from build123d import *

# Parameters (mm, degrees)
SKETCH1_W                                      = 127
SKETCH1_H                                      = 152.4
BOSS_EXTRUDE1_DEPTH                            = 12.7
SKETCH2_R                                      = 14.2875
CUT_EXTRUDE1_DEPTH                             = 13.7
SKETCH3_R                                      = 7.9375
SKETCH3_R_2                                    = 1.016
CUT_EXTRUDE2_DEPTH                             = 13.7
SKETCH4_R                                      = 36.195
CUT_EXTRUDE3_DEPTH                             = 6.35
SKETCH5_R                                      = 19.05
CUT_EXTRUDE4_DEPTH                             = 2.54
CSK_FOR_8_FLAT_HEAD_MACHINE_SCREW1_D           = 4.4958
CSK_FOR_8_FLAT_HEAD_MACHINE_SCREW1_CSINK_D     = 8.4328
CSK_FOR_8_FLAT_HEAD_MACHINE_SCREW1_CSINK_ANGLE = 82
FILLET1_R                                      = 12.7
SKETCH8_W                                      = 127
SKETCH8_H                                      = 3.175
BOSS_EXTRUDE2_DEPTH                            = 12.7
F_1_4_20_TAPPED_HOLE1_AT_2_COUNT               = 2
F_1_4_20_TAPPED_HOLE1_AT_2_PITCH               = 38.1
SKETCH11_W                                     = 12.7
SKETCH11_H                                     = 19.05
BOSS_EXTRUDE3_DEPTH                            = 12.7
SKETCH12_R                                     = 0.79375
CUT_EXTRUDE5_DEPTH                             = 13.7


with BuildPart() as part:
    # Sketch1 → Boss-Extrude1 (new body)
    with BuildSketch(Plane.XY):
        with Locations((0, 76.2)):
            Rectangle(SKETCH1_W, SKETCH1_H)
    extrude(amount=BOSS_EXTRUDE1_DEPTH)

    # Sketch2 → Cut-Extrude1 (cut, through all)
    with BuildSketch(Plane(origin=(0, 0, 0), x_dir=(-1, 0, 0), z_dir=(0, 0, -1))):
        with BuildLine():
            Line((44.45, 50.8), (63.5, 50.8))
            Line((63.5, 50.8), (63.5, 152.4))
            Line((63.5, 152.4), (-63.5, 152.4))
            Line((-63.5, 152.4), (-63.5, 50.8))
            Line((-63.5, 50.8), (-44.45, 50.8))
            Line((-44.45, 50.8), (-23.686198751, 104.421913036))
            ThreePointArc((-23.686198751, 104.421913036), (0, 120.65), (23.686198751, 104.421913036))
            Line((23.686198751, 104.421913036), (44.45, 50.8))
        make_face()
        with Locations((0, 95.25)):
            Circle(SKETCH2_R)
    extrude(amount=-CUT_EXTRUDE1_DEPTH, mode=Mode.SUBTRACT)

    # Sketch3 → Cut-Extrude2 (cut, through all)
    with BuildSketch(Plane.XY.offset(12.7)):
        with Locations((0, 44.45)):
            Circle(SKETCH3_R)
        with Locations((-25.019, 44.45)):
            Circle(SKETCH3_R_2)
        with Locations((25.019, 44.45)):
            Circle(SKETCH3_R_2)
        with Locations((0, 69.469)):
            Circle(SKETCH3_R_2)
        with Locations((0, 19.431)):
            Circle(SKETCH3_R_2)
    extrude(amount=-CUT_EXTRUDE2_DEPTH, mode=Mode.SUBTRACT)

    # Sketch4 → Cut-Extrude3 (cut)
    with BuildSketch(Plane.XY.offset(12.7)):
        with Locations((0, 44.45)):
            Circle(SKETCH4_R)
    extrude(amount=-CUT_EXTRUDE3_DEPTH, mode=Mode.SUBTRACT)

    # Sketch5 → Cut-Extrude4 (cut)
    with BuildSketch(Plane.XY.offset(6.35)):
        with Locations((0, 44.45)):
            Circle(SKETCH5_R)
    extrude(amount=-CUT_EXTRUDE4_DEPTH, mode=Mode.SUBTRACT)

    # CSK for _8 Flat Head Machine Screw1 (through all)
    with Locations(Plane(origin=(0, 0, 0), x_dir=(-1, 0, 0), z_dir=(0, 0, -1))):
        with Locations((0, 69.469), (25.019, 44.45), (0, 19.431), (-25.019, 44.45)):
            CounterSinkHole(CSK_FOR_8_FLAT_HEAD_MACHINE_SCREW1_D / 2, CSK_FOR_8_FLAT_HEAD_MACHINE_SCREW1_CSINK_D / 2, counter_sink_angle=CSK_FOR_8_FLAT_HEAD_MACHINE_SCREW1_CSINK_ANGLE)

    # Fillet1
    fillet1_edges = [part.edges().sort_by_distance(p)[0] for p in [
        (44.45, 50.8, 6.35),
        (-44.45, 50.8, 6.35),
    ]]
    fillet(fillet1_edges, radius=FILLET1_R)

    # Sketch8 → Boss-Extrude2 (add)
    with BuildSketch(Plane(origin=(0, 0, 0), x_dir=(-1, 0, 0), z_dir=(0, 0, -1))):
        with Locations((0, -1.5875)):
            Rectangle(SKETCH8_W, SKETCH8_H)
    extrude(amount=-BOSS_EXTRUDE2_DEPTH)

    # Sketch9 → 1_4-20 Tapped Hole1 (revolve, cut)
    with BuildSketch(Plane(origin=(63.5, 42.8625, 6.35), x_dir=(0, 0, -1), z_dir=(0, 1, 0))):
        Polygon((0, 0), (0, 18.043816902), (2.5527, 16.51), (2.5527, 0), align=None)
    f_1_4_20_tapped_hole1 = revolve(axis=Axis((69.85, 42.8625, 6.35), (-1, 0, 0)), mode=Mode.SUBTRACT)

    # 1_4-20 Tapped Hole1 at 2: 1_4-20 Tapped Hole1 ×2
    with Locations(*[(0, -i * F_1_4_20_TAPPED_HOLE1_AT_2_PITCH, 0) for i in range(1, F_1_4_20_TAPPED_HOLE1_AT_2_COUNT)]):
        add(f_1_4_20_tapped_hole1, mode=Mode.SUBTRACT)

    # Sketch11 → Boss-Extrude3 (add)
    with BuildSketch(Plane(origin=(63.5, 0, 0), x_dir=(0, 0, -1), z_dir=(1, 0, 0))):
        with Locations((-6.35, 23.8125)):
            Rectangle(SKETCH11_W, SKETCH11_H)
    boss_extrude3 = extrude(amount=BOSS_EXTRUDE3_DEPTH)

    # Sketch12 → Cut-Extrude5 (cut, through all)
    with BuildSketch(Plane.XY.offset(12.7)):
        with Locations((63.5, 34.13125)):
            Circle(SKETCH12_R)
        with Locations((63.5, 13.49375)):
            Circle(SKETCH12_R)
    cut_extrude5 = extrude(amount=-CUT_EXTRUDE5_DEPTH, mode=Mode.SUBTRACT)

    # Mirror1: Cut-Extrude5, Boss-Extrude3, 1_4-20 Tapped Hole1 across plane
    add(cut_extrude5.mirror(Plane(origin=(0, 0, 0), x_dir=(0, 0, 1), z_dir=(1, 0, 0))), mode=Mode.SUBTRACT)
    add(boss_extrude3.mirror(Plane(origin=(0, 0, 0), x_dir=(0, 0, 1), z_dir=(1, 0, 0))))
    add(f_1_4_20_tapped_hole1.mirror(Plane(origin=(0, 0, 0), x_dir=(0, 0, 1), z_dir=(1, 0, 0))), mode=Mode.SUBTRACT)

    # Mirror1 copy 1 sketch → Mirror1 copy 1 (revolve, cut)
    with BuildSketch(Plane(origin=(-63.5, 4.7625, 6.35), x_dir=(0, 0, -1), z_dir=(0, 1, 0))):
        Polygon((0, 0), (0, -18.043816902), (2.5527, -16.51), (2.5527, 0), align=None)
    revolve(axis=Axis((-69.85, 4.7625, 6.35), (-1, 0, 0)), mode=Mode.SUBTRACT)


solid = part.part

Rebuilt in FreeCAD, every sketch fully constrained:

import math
import FreeCAD as App
import Part
import Sketcher
Q = App.Units.Quantity


def edges_at(feature, points):
    """Names of the edges that pass closest to the given points."""
    edges = feature.Shape.Edges
    near = lambda p: min(range(len(edges)), key=lambda i: edges[i].distToShape(Part.Vertex(*p))[0])
    return sorted({f"Edge{near(p) + 1}" for p in points})

doc = App.newDocument("Part")
body = doc.addObject("PartDesign::Body", "Body")

# Sketch on XY plane
sketch1 = body.newObject("Sketcher::SketchObject", "Sketch")
sketch1.AttachmentSupport = (doc.getObject("XY_Plane"), [""])
sketch1.MapMode = "FlatFace"
sketch1.addGeometry([
    Part.LineSegment(App.Vector(-64, 152, 0), App.Vector(-64, 0, 0)),
    Part.LineSegment(App.Vector(-64, 0, 0), App.Vector(64, 0, 0)),
    Part.LineSegment(App.Vector(64, 0, 0), App.Vector(64, 152, 0)),
    Part.LineSegment(App.Vector(64, 152, 0), App.Vector(-64, 152, 0)),
], False)
sketch1.addConstraint([
    Sketcher.Constraint("Coincident", 0, 2, 1, 1),
    Sketcher.Constraint("Coincident", 1, 2, 2, 1),
    Sketcher.Constraint("Coincident", 2, 2, 3, 1),
    Sketcher.Constraint("Coincident", 3, 2, 0, 1),
    Sketcher.Constraint("Vertical", 0),
    Sketcher.Constraint("Horizontal", 1),
    Sketcher.Constraint("Vertical", 2),
    Sketcher.Constraint("Horizontal", 3),
    Sketcher.Constraint("Symmetric", 0, 2, 1, 2, -1, 1),
    Sketcher.Constraint("DistanceX", 1, 1, 1, 2, Q("5 in")),
    Sketcher.Constraint("DistanceY", 0, 2, 0, 1, Q("6 in")),
])
pad1 = body.newObject("PartDesign::Pad", "Pad")
pad1.Profile = sketch1
pad1.Length = Q("0.5 in")

# Sketch on XY plane
sketch2 = body.newObject("Sketcher::SketchObject", "Sketch001")
sketch2.AttachmentSupport = (doc.getObject("XY_Plane"), [""])
sketch2.MapMode = "FlatFace"
sketch2.addGeometry([
    Part.LineSegment(App.Vector(-44, 51, 0), App.Vector(-64, 51, 0)),  # 0
    Part.LineSegment(App.Vector(-64, 51, 0), App.Vector(-64, 152, 0)),  # 1
    Part.LineSegment(App.Vector(-64, 152, 0), App.Vector(64, 152, 0)),  # 2
    Part.LineSegment(App.Vector(64, 152, 0), App.Vector(64, 51, 0)),  # 3
    Part.LineSegment(App.Vector(64, 51, 0), App.Vector(44, 51, 0)),  # 4
    Part.LineSegment(App.Vector(44, 51, 0), App.Vector(24, 104, 0)),  # 5
    Part.ArcOfCircle(Part.Circle(App.Vector(0, 95, 0), App.Vector(0, 0, 1), 25), math.radians(21), math.radians(159)),  # 6
    Part.LineSegment(App.Vector(-24, 104, 0), App.Vector(-44, 51, 0)),  # 7
    Part.Circle(App.Vector(0, 95, 0), App.Vector(0, 0, 1), 14),  # 8
], False)
sketch2.addConstraint([
    Sketcher.Constraint("Coincident", 0, 2, 1, 1),
    Sketcher.Constraint("Coincident", 1, 2, 2, 1),
    Sketcher.Constraint("Coincident", 2, 2, 3, 1),
    Sketcher.Constraint("Coincident", 3, 2, 4, 1),
    Sketcher.Constraint("Coincident", 4, 2, 5, 1),
    Sketcher.Constraint("Tangent", 5, 2, 6, 1),
    Sketcher.Constraint("Tangent", 6, 2, 7, 1),
    Sketcher.Constraint("Coincident", 7, 2, 0, 1),
    Sketcher.Constraint("Horizontal", 0),
    Sketcher.Constraint("Vertical", 1),
    Sketcher.Constraint("Horizontal", 2),
    Sketcher.Constraint("Vertical", 3),
    Sketcher.Constraint("Horizontal", 4),
    Sketcher.Constraint("Coincident", 8, 3, 6, 3),
    Sketcher.Constraint("Symmetric", 0, 2, 3, 2, -2),
    Sketcher.Constraint("Symmetric", 5, 2, 6, 2, -2),
    Sketcher.Constraint("Radius", 6, Q("1 in")),
    Sketcher.Constraint("DistanceX", 2, 1, 2, 2, Q("5 in")),
    Sketcher.Constraint("DistanceY", 1, 1, 1, 2, Q("4 in")),
    Sketcher.Constraint("Diameter", 8, Q("1.125 in")),
    Sketcher.Constraint("DistanceY", -1, 1, 0, 2, Q("2 in")),
    Sketcher.Constraint("DistanceX", 0, 2, 0, 1, Q("0.75 in")),
    Sketcher.Constraint("DistanceY", -1, 1, 6, 3, Q("3.75 in")),
])
pocket1 = body.newObject("PartDesign::Pocket", "Pocket")
pocket1.Profile = sketch2
pocket1.Type = "ThroughAll"
pocket1.Reversed = True

# Sketch on XY plane
sketch3 = body.newObject("Sketcher::SketchObject", "Sketch002")
sketch3.AttachmentSupport = (doc.getObject("XY_Plane"), [""])
sketch3.MapMode = "FlatFace"
sketch3.AttachmentOffset = App.Placement(App.Vector(0, 0, 0.5 * 25.4), App.Rotation())
sketch3.addGeometry([
    Part.Circle(App.Vector(0, 44.5, 0), App.Vector(0, 0, 1), 7.9),  # 0
    Part.Circle(App.Vector(-25, 44.5, 0), App.Vector(0, 0, 1), 1),  # 1
    Part.Circle(App.Vector(25, 44.5, 0), App.Vector(0, 0, 1), 1),  # 2
    Part.Circle(App.Vector(0, 69.5, 0), App.Vector(0, 0, 1), 1),  # 3
    Part.Circle(App.Vector(0, 19.4, 0), App.Vector(0, 0, 1), 1),  # 4
], False)
sketch3.addConstraint([
    Sketcher.Constraint("Equal", 1, 2),
    Sketcher.Constraint("Equal", 2, 3),
    Sketcher.Constraint("Equal", 3, 4),
    Sketcher.Constraint("Symmetric", 1, 3, 2, 3, -2),
    Sketcher.Constraint("PointOnObject", 0, 3, -2),
    Sketcher.Constraint("PointOnObject", 3, 3, -2),
    Sketcher.Constraint("PointOnObject", 4, 3, -2),
    Sketcher.Constraint("Horizontal", 0, 3, 1, 3),
    Sketcher.Constraint("Diameter", 1, Q("0.08 in")),
    Sketcher.Constraint("Diameter", 0, Q("0.625 in")),
    Sketcher.Constraint("DistanceY", -1, 1, 0, 3, Q("1.75 in")),
    Sketcher.Constraint("DistanceX", 1, 3, 2, 3, Q("1.97 in")),
    Sketcher.Constraint("DistanceY", 4, 3, 3, 3, Q("1.97 in")),
    Sketcher.Constraint("DistanceY", -1, 1, 3, 3, Q("2.735 in")),
])
pocket2 = body.newObject("PartDesign::Pocket", "Pocket001")
pocket2.Profile = sketch3
pocket2.Type = "ThroughAll"

# Sketch on XY plane
sketch4 = body.newObject("Sketcher::SketchObject", "Sketch003")
sketch4.AttachmentSupport = (doc.getObject("XY_Plane"), [""])
sketch4.MapMode = "FlatFace"
sketch4.AttachmentOffset = App.Placement(App.Vector(0, 0, 0.5 * 25.4), App.Rotation())
sketch4.addGeometry(Part.Circle(App.Vector(0, 44, 0), App.Vector(0, 0, 1), 36), False)
sketch4.addConstraint([
    Sketcher.Constraint("PointOnObject", 0, 3, -2),
    Sketcher.Constraint("Diameter", 0, Q("2.85 in")),
    Sketcher.Constraint("DistanceY", -1, 1, 0, 3, Q("1.75 in")),
])
pocket3 = body.newObject("PartDesign::Pocket", "Pocket002")
pocket3.Profile = sketch4
pocket3.Length = Q("0.25 in")

# Sketch on XY plane
sketch5 = body.newObject("Sketcher::SketchObject", "Sketch004")
sketch5.AttachmentSupport = (doc.getObject("XY_Plane"), [""])
sketch5.MapMode = "FlatFace"
sketch5.AttachmentOffset = App.Placement(App.Vector(0, 0, 0.25 * 25.4), App.Rotation())
sketch5.addGeometry(Part.Circle(App.Vector(0, 44, 0), App.Vector(0, 0, 1), 19), False)
sketch5.addConstraint([
    Sketcher.Constraint("PointOnObject", 0, 3, -2),
    Sketcher.Constraint("Diameter", 0, Q("1.5 in")),
    Sketcher.Constraint("DistanceY", -1, 1, 0, 3, Q("1.75 in")),
])
pocket4 = body.newObject("PartDesign::Pocket", "Pocket003")
pocket4.Profile = sketch5
pocket4.Length = Q("0.1 in")

# Sketch on XY plane
sketch6 = body.newObject("Sketcher::SketchObject", "Sketch005")
sketch6.AttachmentSupport = (doc.getObject("XY_Plane"), [""])
sketch6.MapMode = "FlatFace"
sketch6.addGeometry([
    Part.Circle(App.Vector(0, 69.5, 0), App.Vector(0, 0, 1), 2.2),
    Part.Circle(App.Vector(-25, 44.5, 0), App.Vector(0, 0, 1), 2.2),
    Part.Circle(App.Vector(0, 19.4, 0), App.Vector(0, 0, 1), 2.2),
    Part.Circle(App.Vector(25, 44.5, 0), App.Vector(0, 0, 1), 2.2),
], False)
sketch6.addConstraint([
    Sketcher.Constraint("Equal", 0, 1),
    Sketcher.Constraint("Equal", 1, 2),
    Sketcher.Constraint("Equal", 2, 3),
    Sketcher.Constraint("Symmetric", 1, 3, 3, 3, -2),
    Sketcher.Constraint("PointOnObject", 0, 3, -2),
    Sketcher.Constraint("PointOnObject", 2, 3, -2),
    Sketcher.Constraint("Diameter", 0, Q("0.177 in")),
    Sketcher.Constraint("DistanceY", -1, 1, 1, 3, Q("1.75 in")),
    Sketcher.Constraint("DistanceY", 2, 3, 0, 3, Q("1.97 in")),
    Sketcher.Constraint("DistanceX", 1, 3, 3, 3, Q("1.97 in")),
    Sketcher.Constraint("DistanceY", -1, 1, 0, 3, Q("2.735 in")),
])
doc.recompute()
hole = body.newObject("PartDesign::Hole", "Hole")
hole.Profile = sketch6
hole.ThreadType = "None"
hole.Diameter = Q("0.177 in")
hole.DepthType = "ThroughAll"
hole.HoleCutType = "Countersink"
hole.HoleCutDiameter = Q("0.332 in")
hole.HoleCutCountersinkAngle = 82
hole.Reversed = True
doc.recompute()

fillet = body.newObject("PartDesign::Fillet", "Fillet")
fillet.Base = (hole, edges_at(hole, [(44.45, 50.8, 6.35), (-44.45, 50.8, 6.35)]))
fillet.Radius = Q("0.5 in")

# Sketch on XY plane
sketch7 = body.newObject("Sketcher::SketchObject", "Sketch006")
sketch7.AttachmentSupport = (doc.getObject("XY_Plane"), [""])
sketch7.MapMode = "FlatFace"
sketch7.addGeometry([
    Part.LineSegment(App.Vector(63.5, 0, 0), App.Vector(63.5, -3.2, 0)),
    Part.LineSegment(App.Vector(63.5, -3.2, 0), App.Vector(-63.5, -3.2, 0)),
    Part.LineSegment(App.Vector(-63.5, -3.2, 0), App.Vector(-63.5, 0, 0)),
    Part.LineSegment(App.Vector(-63.5, 0, 0), App.Vector(63.5, 0, 0)),
], False)
sketch7.addConstraint([
    Sketcher.Constraint("Coincident", 0, 2, 1, 1),
    Sketcher.Constraint("Coincident", 1, 2, 2, 1),
    Sketcher.Constraint("Coincident", 2, 2, 3, 1),
    Sketcher.Constraint("Coincident", 3, 2, 0, 1),
    Sketcher.Constraint("Vertical", 0),
    Sketcher.Constraint("Horizontal", 1),
    Sketcher.Constraint("Vertical", 2),
    Sketcher.Constraint("Horizontal", 3),
    Sketcher.Constraint("Symmetric", 2, 2, 3, 2, -1, 1),
    Sketcher.Constraint("DistanceX", 1, 2, 1, 1, Q("5 in")),
    Sketcher.Constraint("DistanceY", 0, 2, 0, 1, Q("0.125 in")),
])
pad2 = body.newObject("PartDesign::Pad", "Pad001")
pad2.Profile = sketch7
pad2.Length = Q("0.5 in")

# Sketch on XZ plane
sketch8 = body.newObject("Sketcher::SketchObject", "Sketch007")
sketch8.AttachmentSupport = (doc.getObject("XZ_Plane"), [""])
sketch8.MapMode = "FlatFace"
sketch8.AttachmentOffset = App.Placement(App.Vector(0, 0, -1.6875 * 25.4), App.Rotation())
sketch8.addGeometry([
    Part.LineSegment(App.Vector(45.5, 6.3, 0), App.Vector(63.5, 6.3, 0)),
    Part.LineSegment(App.Vector(63.5, 6.3, 0), App.Vector(63.5, 3.8, 0)),
    Part.LineSegment(App.Vector(63.5, 3.8, 0), App.Vector(47, 3.8, 0)),
    Part.LineSegment(App.Vector(47, 3.8, 0), App.Vector(45.5, 6.3, 0)),
], False)
sketch8.addGeometry(Part.LineSegment(App.Vector(63.5, 6.3, 0), App.Vector(45.5, 6.3, 0)), True)  # axis
sketch8.addConstraint([
    Sketcher.Constraint("Coincident", 0, 2, 1, 1),
    Sketcher.Constraint("Coincident", 1, 2, 2, 1),
    Sketcher.Constraint("Coincident", 2, 2, 3, 1),
    Sketcher.Constraint("Coincident", 3, 2, 0, 1),
    Sketcher.Constraint("Horizontal", 0),
    Sketcher.Constraint("Vertical", 1),
    Sketcher.Constraint("Horizontal", 2),
    Sketcher.Constraint("Horizontal", 4),
    Sketcher.Constraint("Coincident", 4, 1, 0, 2),
    Sketcher.Constraint("Equal", 0, 4),
    Sketcher.Constraint("Angle", 3, Q("121 deg")),
    Sketcher.Constraint("DistanceX", 2, 2, 2, 1, Q("0.65 in")),
    Sketcher.Constraint("DistanceX", -1, 1, 0, 2, Q("2.5 in")),
    Sketcher.Constraint("DistanceY", -1, 1, 0, 2, Q("0.25 in")),
    Sketcher.Constraint("DistanceY", 1, 2, 1, 1, Q("0.1005 in")),
])
groove = body.newObject("PartDesign::Groove", "Groove")
groove.Profile = sketch8
groove.ReferenceAxis = (sketch8, ["Axis0"])
groove.Angle = 360
doc.recompute()

linearpattern = body.newObject("PartDesign::LinearPattern", "LinearPattern")
linearpattern.Originals = [groove]
linearpattern.Direction = (doc.getObject("Y_Axis"), [""])
linearpattern.Mode = "offset"
linearpattern.Offset = Q("1.5 in")
linearpattern.Occurrences = 2
linearpattern.Reversed = True
body.Tip = linearpattern

# Sketch on YZ plane
sketch9 = body.newObject("Sketcher::SketchObject", "Sketch008")
sketch9.AttachmentSupport = (doc.getObject("YZ_Plane"), [""])
sketch9.MapMode = "FlatFace"
sketch9.AttachmentOffset = App.Placement(App.Vector(0, 0, 2.5 * 25.4), App.Rotation())
sketch9.addGeometry([
    Part.LineSegment(App.Vector(33, 13, 0), App.Vector(14, 13, 0)),
    Part.LineSegment(App.Vector(14, 13, 0), App.Vector(14, 0, 0)),
    Part.LineSegment(App.Vector(14, 0, 0), App.Vector(33, 0, 0)),
    Part.LineSegment(App.Vector(33, 0, 0), App.Vector(33, 13, 0)),
], False)
sketch9.addConstraint([
    Sketcher.Constraint("Coincident", 0, 2, 1, 1),
    Sketcher.Constraint("Coincident", 1, 2, 2, 1),
    Sketcher.Constraint("Coincident", 2, 2, 3, 1),
    Sketcher.Constraint("Coincident", 3, 2, 0, 1),
    Sketcher.Constraint("Horizontal", 0),
    Sketcher.Constraint("Vertical", 1),
    Sketcher.Constraint("Horizontal", 2),
    Sketcher.Constraint("Vertical", 3),
    Sketcher.Constraint("PointOnObject", 1, 2, -1),
    Sketcher.Constraint("DistanceY", 1, 2, 1, 1, Q("0.5 in")),
    Sketcher.Constraint("DistanceX", 0, 2, 0, 1, Q("0.75 in")),
    Sketcher.Constraint("DistanceX", -1, 1, 0, 2, Q("0.5625 in")),
])
pad3 = body.newObject("PartDesign::Pad", "Pad002")
pad3.Profile = sketch9
pad3.Length = Q("0.5 in")

# Sketch on XY plane
sketch10 = body.newObject("Sketcher::SketchObject", "Sketch009")
sketch10.AttachmentSupport = (doc.getObject("XY_Plane"), [""])
sketch10.MapMode = "FlatFace"
sketch10.AttachmentOffset = App.Placement(App.Vector(0, 0, 0.5 * 25.4), App.Rotation())
sketch10.addGeometry([
    Part.Circle(App.Vector(63.5, 34.1, 0), App.Vector(0, 0, 1), 0.8),
    Part.Circle(App.Vector(63.5, 13.5, 0), App.Vector(0, 0, 1), 0.8),
], False)
sketch10.addConstraint([
    Sketcher.Constraint("Equal", 0, 1),
    Sketcher.Constraint("Vertical", 0, 3, 1, 3),
    Sketcher.Constraint("Diameter", 0, Q("0.0625 in")),
    Sketcher.Constraint("DistanceX", -1, 1, 0, 3, Q("2.5 in")),
    Sketcher.Constraint("DistanceY", -1, 1, 0, 3, Q("1.34375 in")),
    Sketcher.Constraint("DistanceY", -1, 1, 1, 3, Q("0.53125 in")),
])
pocket5 = body.newObject("PartDesign::Pocket", "Pocket004")
pocket5.Profile = sketch10
pocket5.Type = "ThroughAll"
doc.recompute()

mirrored = body.newObject("PartDesign::Mirrored", "Mirrored")
mirrored.Originals = [pocket5, pad3, groove]
mirrored.MirrorPlane = (doc.getObject("YZ_Plane"), [""])
body.Tip = mirrored

# Sketch on XZ plane
sketch11 = body.newObject("Sketcher::SketchObject", "Sketch010")
sketch11.AttachmentSupport = (doc.getObject("XZ_Plane"), [""])
sketch11.MapMode = "FlatFace"
sketch11.AttachmentOffset = App.Placement(App.Vector(0, 0, -0.1875 * 25.4), App.Rotation())
sketch11.addGeometry([
    Part.LineSegment(App.Vector(-63.5, 6.3, 0), App.Vector(-45.5, 6.3, 0)),
    Part.LineSegment(App.Vector(-45.5, 6.3, 0), App.Vector(-47, 3.8, 0)),
    Part.LineSegment(App.Vector(-47, 3.8, 0), App.Vector(-63.5, 3.8, 0)),
    Part.LineSegment(App.Vector(-63.5, 3.8, 0), App.Vector(-63.5, 6.3, 0)),
], False)
sketch11.addGeometry(Part.LineSegment(App.Vector(-45.5, 6.3, 0), App.Vector(-63.5, 6.3, 0)), True)  # axis
sketch11.addConstraint([
    Sketcher.Constraint("Coincident", 0, 2, 1, 1),
    Sketcher.Constraint("Coincident", 1, 2, 2, 1),
    Sketcher.Constraint("Coincident", 2, 2, 3, 1),
    Sketcher.Constraint("Coincident", 3, 2, 0, 1),
    Sketcher.Constraint("Horizontal", 0),
    Sketcher.Constraint("Horizontal", 2),
    Sketcher.Constraint("Vertical", 3),
    Sketcher.Constraint("Horizontal", 4),
    Sketcher.Constraint("Coincident", 4, 1, 0, 2),
    Sketcher.Constraint("Vertical", 2, 2, 4, 2),
    Sketcher.Constraint("Angle", 1, Q("-121 deg")),
    Sketcher.Constraint("DistanceX", 2, 2, 2, 1, Q("0.65 in")),
    Sketcher.Constraint("DistanceX", 2, 2, -1, 1, Q("2.5 in")),
    Sketcher.Constraint("DistanceY", -1, 1, 0, 2, Q("0.25 in")),
    Sketcher.Constraint("DistanceY", 3, 1, 3, 2, Q("0.1005 in")),
])
groove2 = body.newObject("PartDesign::Groove", "Groove001")
groove2.Profile = sketch11
groove2.ReferenceAxis = (sketch11, ["Axis0"])
groove2.Angle = 360

doc.recompute()
